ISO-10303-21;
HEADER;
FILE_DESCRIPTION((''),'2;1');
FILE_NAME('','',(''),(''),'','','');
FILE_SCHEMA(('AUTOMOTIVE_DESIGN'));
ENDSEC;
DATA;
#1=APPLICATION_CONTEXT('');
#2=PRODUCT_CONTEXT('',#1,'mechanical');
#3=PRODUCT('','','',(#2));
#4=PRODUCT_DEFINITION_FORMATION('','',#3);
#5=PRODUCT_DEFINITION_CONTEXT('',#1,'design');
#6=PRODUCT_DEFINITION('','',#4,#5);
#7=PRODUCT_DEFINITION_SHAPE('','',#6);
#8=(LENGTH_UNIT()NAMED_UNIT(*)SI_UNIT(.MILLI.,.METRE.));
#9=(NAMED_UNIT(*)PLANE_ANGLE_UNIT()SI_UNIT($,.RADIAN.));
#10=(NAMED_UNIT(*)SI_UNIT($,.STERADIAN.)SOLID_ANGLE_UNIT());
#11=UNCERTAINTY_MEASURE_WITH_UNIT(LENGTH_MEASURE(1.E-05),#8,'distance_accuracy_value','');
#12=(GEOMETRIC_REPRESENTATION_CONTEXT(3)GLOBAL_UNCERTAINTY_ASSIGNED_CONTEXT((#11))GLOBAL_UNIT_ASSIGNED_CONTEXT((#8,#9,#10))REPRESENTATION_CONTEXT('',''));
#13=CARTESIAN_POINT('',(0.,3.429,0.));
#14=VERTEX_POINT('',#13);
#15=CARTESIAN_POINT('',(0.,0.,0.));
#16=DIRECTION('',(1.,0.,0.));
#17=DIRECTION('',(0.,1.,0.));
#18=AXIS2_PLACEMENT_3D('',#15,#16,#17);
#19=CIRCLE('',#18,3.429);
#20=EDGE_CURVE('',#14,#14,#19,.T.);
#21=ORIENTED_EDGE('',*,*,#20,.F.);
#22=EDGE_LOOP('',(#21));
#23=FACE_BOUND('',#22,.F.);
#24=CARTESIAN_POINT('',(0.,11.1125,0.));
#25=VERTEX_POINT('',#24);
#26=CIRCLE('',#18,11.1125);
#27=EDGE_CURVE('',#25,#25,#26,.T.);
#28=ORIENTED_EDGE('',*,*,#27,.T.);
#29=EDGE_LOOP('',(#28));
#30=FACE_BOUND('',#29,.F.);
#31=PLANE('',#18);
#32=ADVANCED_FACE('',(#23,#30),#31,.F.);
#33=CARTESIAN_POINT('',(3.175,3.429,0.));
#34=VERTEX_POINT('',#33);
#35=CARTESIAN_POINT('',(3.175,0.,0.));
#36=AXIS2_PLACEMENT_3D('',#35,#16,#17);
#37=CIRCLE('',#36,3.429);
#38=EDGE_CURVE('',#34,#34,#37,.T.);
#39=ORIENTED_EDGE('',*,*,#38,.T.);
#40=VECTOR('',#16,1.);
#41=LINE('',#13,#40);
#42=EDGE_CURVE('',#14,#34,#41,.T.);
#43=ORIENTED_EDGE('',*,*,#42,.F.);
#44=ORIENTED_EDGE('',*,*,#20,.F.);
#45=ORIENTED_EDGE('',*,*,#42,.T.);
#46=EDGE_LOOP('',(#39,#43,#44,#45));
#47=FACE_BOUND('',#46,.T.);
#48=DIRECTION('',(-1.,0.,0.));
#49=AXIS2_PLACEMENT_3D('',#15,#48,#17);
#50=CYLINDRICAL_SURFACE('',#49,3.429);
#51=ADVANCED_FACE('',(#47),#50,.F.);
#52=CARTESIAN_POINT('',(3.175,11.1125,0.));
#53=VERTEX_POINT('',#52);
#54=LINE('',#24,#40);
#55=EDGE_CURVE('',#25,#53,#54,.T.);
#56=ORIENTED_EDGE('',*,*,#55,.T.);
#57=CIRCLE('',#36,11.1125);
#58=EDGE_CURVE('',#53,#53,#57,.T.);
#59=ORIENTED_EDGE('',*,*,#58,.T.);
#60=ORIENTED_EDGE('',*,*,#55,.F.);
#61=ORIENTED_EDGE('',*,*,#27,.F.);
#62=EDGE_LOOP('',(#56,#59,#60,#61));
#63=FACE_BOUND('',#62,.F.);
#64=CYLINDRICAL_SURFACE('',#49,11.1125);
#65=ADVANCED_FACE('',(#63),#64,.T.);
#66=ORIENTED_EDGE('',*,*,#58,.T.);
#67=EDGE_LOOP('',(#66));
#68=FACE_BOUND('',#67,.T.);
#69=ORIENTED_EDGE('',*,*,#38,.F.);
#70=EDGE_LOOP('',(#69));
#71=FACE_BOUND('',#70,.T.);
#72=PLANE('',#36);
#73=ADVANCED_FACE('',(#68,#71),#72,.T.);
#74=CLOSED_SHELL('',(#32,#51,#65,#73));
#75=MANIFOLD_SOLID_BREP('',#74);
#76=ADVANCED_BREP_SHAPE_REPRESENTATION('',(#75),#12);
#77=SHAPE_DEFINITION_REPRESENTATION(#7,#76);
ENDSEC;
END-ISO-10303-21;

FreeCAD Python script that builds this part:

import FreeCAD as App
import Part
import Sketcher

V = App.Vector
Q = App.Units.Quantity

doc = App.newDocument("Part")
body = doc.addObject("PartDesign::Body", "Body")

sketch1 = body.newObject("Sketcher::SketchObject", "Sketch")
sketch1.AttachmentSupport = (doc.getObject("YZ_Plane"), [""])
sketch1.MapMode = "FlatFace"
sketch1.addGeometry(Part.Circle(V(0, 0, 0), V(0, 0, 1), 11.1), False)
sketch1.addGeometry(Part.Circle(V(0, 0, 0), V(0, 0, 1), 3.4), False)
sketch1.addConstraint(Sketcher.Constraint("Coincident", 0, 3, -1, 1))
sketch1.addConstraint(Sketcher.Constraint("Coincident", 1, 3, -1, 1))
sketch1.addConstraint(Sketcher.Constraint("Diameter", 1, Q("0.27 in")))
sketch1.addConstraint(Sketcher.Constraint("Diameter", 0, Q("0.875 in")))
pad1 = body.newObject("PartDesign::Pad", "Pad")
pad1.Profile = sketch1
pad1.Length = Q("0.125 in")

doc.recompute()
